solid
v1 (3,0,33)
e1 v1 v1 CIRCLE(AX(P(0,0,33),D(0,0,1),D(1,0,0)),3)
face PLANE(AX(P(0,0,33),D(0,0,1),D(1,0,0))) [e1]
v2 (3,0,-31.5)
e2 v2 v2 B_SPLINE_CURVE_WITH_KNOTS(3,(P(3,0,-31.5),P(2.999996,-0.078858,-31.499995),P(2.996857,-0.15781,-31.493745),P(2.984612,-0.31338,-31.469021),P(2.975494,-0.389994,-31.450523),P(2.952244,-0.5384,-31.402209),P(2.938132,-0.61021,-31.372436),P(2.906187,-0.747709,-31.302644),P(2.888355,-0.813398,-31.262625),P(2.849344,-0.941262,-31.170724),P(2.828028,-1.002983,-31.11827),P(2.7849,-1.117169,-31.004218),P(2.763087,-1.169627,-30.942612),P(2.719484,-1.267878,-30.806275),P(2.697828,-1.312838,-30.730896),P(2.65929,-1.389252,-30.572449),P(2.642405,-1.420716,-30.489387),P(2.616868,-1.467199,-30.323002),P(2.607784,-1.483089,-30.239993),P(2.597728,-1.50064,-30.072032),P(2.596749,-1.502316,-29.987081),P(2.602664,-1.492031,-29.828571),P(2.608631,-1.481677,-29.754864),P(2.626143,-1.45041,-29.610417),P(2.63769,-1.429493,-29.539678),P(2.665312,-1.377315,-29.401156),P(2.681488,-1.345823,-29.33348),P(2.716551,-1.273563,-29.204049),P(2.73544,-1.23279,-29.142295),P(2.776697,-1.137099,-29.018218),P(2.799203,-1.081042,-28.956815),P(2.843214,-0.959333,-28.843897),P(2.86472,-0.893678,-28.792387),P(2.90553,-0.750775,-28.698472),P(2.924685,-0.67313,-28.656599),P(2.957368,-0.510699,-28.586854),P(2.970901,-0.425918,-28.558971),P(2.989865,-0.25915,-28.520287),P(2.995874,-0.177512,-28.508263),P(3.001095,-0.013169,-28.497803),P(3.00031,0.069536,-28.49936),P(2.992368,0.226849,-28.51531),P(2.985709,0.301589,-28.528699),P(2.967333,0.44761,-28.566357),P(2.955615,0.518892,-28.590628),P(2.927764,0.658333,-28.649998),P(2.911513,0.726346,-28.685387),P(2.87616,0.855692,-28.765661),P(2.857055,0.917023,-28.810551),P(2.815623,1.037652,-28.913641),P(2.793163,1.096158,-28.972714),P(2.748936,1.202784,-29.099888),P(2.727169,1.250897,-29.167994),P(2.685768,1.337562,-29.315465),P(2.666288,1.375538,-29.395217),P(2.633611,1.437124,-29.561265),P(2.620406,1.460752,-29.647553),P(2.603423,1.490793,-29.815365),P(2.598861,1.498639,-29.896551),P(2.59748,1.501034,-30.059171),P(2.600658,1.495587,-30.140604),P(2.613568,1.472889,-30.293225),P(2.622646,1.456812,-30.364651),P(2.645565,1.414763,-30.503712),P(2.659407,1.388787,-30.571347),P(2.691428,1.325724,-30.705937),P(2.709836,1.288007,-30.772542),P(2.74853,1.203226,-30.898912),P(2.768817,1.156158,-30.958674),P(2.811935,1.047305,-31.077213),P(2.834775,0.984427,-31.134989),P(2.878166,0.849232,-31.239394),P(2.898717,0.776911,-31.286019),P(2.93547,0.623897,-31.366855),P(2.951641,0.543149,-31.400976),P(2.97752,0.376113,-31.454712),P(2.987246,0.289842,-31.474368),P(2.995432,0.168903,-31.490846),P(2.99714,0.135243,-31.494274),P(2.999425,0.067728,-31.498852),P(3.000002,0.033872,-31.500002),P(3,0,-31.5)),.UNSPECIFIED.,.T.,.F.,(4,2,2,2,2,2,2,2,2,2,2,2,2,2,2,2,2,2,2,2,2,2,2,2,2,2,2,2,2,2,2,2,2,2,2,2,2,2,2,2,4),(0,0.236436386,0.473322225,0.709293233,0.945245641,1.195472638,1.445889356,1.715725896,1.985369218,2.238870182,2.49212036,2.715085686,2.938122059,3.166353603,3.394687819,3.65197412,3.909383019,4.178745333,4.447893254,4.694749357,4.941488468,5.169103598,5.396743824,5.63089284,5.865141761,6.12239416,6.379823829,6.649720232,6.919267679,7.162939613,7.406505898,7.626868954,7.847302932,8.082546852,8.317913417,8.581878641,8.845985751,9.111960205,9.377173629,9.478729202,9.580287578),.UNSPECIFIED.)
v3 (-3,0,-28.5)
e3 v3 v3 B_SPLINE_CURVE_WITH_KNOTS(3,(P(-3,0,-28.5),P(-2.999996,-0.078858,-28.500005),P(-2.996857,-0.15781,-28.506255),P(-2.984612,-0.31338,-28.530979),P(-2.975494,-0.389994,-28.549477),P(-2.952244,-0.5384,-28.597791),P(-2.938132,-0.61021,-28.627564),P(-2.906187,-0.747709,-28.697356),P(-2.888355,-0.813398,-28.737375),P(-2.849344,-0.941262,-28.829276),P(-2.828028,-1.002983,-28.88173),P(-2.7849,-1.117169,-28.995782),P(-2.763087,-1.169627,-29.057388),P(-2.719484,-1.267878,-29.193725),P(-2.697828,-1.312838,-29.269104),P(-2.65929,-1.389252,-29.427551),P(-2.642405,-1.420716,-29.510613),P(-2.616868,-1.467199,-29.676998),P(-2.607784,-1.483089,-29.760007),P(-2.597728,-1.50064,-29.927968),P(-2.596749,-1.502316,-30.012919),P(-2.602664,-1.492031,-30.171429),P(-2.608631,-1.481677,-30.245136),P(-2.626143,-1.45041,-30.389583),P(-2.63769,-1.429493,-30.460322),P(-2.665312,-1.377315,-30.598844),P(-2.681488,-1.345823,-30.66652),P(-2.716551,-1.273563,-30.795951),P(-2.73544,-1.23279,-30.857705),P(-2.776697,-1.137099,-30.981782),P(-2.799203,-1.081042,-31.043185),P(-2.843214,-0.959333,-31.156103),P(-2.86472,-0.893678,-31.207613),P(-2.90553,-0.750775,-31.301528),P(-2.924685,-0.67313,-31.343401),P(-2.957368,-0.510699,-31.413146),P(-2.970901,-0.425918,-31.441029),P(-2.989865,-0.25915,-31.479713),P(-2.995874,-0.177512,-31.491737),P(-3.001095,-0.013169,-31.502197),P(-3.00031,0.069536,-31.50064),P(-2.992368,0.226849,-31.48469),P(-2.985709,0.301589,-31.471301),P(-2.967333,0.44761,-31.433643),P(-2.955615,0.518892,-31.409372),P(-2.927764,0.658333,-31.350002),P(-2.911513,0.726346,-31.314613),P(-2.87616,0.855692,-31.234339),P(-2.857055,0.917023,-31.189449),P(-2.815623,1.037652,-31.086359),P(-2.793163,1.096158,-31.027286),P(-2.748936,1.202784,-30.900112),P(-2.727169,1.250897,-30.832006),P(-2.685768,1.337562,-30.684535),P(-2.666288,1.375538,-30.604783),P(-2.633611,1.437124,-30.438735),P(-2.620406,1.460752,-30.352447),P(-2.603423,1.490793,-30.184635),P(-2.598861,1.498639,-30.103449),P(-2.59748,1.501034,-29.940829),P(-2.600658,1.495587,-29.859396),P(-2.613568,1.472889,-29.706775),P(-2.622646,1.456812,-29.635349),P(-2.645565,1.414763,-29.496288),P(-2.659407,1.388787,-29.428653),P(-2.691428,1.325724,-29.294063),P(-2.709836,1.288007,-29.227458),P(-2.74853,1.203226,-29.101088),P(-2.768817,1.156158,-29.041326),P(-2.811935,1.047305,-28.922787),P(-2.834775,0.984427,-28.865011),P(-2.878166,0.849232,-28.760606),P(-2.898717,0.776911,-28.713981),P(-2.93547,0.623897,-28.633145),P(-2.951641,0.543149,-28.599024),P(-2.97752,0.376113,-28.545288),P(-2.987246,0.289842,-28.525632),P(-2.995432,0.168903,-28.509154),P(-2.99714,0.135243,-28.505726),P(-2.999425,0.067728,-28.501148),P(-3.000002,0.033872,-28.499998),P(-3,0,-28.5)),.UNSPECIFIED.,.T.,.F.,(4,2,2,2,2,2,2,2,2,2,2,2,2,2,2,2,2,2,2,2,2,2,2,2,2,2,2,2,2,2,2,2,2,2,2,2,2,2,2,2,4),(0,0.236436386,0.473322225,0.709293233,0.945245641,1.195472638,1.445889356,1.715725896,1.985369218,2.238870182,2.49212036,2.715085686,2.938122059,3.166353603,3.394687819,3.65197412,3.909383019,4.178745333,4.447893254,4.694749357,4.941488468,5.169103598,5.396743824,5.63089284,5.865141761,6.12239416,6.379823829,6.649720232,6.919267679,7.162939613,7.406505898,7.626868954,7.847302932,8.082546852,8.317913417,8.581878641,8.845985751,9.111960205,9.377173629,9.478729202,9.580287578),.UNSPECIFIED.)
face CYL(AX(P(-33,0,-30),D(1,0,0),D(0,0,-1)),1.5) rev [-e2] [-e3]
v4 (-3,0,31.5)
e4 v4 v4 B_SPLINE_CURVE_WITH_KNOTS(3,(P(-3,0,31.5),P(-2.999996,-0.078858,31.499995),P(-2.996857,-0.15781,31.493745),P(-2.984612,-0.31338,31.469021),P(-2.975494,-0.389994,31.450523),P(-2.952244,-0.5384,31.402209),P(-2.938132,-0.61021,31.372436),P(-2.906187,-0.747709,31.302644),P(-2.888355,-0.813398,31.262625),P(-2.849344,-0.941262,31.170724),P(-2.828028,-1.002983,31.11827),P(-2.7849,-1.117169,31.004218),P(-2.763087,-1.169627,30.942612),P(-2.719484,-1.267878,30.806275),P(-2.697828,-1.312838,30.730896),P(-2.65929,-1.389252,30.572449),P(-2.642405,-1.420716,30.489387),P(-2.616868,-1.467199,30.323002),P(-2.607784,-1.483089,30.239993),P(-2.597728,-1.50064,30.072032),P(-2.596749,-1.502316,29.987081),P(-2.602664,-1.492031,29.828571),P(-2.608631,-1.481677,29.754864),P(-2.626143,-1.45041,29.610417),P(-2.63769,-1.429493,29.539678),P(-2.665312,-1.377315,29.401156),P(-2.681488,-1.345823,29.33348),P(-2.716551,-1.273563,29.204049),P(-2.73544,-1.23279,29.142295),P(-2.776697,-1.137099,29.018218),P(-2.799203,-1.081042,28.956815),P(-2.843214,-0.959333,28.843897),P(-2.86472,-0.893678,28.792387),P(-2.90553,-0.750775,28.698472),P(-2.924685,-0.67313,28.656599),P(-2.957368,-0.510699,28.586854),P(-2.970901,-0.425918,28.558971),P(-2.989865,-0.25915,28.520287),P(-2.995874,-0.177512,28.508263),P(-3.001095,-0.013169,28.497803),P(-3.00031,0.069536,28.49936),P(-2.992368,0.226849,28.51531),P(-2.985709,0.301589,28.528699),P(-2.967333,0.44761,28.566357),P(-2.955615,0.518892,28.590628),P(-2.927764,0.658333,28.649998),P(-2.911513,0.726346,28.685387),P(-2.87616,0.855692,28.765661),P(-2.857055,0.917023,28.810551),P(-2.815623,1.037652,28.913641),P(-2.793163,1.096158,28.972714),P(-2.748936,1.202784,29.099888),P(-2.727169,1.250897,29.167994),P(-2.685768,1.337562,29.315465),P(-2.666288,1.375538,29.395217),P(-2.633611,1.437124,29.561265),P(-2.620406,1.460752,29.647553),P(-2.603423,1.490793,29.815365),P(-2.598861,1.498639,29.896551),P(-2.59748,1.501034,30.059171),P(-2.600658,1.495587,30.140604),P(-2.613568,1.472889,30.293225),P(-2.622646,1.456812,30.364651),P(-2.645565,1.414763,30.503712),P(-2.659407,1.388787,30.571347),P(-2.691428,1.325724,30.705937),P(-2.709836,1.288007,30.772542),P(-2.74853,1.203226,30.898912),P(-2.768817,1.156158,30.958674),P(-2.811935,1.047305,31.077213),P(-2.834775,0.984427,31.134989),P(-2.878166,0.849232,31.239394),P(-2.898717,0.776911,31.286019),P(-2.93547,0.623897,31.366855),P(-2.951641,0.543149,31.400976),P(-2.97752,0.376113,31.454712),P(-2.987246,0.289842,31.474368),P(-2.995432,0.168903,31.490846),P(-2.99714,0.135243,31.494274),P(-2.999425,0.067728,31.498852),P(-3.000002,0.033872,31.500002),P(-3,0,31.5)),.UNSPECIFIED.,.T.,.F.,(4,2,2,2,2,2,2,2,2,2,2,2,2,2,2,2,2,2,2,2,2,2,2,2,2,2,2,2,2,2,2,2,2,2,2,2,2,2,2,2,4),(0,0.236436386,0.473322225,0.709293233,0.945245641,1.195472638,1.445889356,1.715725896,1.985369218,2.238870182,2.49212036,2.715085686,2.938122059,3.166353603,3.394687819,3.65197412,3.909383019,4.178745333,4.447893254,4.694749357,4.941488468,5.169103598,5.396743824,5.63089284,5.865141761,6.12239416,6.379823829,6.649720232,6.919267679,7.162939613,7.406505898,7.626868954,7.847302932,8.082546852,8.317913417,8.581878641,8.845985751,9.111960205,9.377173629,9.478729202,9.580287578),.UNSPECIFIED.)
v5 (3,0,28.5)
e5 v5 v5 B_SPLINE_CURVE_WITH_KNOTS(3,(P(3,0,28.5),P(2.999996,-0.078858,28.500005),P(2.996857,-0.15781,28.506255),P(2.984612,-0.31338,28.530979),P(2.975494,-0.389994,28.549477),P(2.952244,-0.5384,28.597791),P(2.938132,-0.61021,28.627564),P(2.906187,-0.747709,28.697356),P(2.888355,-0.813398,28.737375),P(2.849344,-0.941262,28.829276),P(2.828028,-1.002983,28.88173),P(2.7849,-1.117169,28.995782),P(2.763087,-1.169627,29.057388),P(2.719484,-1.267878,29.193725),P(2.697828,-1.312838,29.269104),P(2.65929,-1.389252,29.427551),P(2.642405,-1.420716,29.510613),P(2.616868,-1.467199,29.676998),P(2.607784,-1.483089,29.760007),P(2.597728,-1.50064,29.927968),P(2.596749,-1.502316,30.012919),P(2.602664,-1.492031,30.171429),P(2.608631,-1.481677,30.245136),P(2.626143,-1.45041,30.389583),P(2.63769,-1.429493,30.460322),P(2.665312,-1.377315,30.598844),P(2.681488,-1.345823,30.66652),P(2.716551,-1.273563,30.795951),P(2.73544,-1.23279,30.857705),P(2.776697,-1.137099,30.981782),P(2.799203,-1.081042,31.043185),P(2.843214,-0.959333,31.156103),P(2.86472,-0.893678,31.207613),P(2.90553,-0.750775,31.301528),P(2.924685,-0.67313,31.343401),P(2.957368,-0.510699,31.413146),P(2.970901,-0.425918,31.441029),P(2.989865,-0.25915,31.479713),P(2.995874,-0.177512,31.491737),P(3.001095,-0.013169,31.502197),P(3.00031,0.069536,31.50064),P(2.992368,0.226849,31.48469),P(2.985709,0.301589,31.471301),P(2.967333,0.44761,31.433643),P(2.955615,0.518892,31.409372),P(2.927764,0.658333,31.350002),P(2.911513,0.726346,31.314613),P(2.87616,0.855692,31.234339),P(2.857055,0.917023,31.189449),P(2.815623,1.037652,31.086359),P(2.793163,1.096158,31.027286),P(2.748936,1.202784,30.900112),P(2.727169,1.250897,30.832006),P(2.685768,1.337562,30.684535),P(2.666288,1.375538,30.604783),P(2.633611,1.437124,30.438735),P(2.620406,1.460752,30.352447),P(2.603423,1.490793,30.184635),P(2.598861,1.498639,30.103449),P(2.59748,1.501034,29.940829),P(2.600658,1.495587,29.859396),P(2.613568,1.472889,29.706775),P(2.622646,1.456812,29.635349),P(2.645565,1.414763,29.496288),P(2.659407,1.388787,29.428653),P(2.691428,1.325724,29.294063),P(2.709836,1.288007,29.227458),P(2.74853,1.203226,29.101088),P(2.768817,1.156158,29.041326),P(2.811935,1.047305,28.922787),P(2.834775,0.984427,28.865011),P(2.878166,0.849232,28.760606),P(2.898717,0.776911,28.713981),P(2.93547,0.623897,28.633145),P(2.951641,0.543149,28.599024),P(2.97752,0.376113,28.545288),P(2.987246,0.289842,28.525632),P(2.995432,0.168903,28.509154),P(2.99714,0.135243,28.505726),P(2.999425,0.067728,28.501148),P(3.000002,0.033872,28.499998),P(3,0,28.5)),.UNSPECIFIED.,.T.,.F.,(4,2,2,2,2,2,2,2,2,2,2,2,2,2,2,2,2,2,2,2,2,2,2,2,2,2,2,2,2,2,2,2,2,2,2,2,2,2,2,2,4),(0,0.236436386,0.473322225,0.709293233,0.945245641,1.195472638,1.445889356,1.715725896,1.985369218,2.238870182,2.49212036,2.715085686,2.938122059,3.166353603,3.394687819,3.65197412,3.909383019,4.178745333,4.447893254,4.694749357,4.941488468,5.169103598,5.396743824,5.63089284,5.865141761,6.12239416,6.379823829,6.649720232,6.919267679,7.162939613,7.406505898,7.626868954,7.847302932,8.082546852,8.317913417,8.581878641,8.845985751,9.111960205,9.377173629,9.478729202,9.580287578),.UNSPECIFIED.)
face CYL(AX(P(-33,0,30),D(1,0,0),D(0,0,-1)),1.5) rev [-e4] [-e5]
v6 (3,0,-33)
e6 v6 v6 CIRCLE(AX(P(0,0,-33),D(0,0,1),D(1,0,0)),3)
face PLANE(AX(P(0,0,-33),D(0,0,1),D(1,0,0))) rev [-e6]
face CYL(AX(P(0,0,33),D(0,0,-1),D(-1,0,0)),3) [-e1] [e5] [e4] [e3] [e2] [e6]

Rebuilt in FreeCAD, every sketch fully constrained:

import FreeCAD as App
import Part
import Sketcher

doc = App.newDocument("Part")
body = doc.addObject("PartDesign::Body", "Body")

# Sketch on XY plane
sketch1 = doc.addObject("Sketcher::SketchObject", "Sketch")
body.addObject(sketch1)
sketch1.AttachmentSupport = (doc.XY_Plane, [""])
sketch1.MapMode = "FlatFace"
sketch1.addGeometry(Part.Circle(App.Vector(0, 0, 0), App.Vector(0, 0, 1), 3), False)
sketch1.addConstraint([
    Sketcher.Constraint("Coincident", 0, 3, -1, 1),
    Sketcher.Constraint("Diameter", 0, 6.0),
])
pad1 = doc.addObject("PartDesign::Pad", "Pad")
body.addObject(pad1)
pad1.Profile = sketch1
pad1.Length = 66
pad1.Midplane = True

# Sketch on YZ plane
sketch2 = doc.addObject("Sketcher::SketchObject", "Sketch001")
body.addObject(sketch2)
sketch2.AttachmentSupport = (doc.YZ_Plane, [""])
sketch2.MapMode = "FlatFace"
sketch2.addGeometry([
    Part.Circle(App.Vector(0, -30, 0), App.Vector(0, 0, 1), 1.5),
    Part.Circle(App.Vector(0, 30, 0), App.Vector(0, 0, 1), 1.5),
], False)
sketch2.addConstraint([
    Sketcher.Constraint("Equal", 0, 1),
    Sketcher.Constraint("Symmetric", 0, 3, 1, 3, -1, 1),
    Sketcher.Constraint("PointOnObject", 0, 3, -2),
    Sketcher.Constraint("Diameter", 0, 3.0),
    Sketcher.Constraint("DistanceY", 0, 3, -1, 1, 30.0),
])
pocket1 = doc.addObject("PartDesign::Pocket", "Pocket")
body.addObject(pocket1)
pocket1.Profile = sketch2
pocket1.Length = 66
pocket1.Midplane = True

doc.recompute()
